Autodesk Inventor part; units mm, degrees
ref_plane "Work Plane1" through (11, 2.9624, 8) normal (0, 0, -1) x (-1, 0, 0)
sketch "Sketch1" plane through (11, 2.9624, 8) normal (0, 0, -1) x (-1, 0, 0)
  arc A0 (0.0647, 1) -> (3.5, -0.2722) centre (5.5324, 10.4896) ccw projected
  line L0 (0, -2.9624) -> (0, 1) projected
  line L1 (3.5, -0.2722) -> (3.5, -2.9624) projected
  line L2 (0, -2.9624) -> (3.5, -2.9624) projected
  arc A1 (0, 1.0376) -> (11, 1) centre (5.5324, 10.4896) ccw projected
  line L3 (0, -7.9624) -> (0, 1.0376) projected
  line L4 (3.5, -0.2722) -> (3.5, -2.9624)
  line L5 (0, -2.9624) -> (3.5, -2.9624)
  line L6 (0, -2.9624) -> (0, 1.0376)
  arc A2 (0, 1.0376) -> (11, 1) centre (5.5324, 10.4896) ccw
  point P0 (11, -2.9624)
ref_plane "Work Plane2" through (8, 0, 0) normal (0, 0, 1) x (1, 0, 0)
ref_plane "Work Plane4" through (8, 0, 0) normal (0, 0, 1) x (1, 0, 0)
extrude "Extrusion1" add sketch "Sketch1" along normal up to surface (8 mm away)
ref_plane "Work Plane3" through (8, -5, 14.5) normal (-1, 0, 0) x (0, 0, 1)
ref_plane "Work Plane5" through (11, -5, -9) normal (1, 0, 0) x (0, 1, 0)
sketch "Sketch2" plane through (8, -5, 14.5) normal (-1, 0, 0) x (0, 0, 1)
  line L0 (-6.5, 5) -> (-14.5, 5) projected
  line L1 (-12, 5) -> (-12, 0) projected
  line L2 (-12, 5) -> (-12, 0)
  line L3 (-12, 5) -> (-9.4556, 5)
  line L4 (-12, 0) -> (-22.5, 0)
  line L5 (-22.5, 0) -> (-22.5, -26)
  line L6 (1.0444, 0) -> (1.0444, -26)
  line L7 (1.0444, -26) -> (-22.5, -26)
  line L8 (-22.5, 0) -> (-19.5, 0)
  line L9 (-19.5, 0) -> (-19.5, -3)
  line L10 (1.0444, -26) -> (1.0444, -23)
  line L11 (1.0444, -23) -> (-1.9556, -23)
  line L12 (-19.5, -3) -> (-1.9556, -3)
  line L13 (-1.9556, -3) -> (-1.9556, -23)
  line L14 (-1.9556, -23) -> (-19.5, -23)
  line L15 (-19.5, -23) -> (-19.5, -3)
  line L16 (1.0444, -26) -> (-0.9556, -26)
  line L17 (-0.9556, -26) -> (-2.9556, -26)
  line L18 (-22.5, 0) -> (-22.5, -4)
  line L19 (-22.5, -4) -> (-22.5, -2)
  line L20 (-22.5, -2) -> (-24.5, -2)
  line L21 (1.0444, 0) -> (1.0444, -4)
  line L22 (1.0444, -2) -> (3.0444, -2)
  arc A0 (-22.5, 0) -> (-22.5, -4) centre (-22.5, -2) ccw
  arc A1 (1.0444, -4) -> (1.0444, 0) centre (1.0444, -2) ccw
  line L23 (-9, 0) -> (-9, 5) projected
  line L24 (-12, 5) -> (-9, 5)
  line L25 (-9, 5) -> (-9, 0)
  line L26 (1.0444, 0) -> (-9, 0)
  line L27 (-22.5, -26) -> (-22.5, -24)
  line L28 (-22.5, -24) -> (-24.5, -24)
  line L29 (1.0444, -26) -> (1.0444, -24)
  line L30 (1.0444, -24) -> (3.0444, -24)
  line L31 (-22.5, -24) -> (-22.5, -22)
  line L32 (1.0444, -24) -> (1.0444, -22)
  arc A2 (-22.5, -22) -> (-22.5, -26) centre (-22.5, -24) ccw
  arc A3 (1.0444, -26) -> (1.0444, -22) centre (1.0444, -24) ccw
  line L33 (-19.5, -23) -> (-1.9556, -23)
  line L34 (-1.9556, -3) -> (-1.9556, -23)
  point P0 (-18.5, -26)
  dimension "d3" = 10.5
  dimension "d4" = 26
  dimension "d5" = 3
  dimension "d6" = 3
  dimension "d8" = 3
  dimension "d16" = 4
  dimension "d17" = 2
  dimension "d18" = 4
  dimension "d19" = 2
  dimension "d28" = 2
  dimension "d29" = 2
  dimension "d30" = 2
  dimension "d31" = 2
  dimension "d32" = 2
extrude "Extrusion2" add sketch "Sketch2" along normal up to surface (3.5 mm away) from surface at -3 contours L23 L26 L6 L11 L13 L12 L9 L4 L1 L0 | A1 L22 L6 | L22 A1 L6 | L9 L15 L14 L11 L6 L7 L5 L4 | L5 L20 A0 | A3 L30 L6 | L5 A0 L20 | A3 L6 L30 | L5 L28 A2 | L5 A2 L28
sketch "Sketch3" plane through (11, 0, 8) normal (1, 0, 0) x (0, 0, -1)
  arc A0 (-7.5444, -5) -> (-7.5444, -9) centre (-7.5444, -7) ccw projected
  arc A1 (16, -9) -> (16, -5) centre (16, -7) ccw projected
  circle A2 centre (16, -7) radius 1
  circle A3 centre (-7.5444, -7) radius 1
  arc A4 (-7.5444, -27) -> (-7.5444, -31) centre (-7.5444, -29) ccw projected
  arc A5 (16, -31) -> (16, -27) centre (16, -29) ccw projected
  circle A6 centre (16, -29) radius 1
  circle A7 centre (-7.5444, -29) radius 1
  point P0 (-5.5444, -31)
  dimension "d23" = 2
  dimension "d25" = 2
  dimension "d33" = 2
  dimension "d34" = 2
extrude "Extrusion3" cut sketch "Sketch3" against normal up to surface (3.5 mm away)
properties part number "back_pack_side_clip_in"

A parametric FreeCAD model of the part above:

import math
import FreeCAD as App
import Part
import Sketcher
from FreeCAD import Vector


def add_polygon(sketch, points):
    """Adds a closed chain of lines whose ends are joined by coincident constraints."""
    first, n = sketch.GeometryCount, len(points)
    for a, b in zip(points, points[1:] + points[:1]):
        sketch.addGeometry(Part.LineSegment(App.Vector(*a, 0), App.Vector(*b, 0)), False)
    for i in range(n):
        sketch.addConstraint(Sketcher.Constraint("Coincident", first + i, 2, first + (i + 1) % n, 1))

doc = App.newDocument("Part")
body = doc.addObject("PartDesign::Body", "Body")

# Sketch on XY plane
sketch1 = body.newObject("Sketcher::SketchObject", "Sketch")
sketch1.AttachmentSupport = (doc.getObject("XY_Plane"), [""])
sketch1.MapMode = "FlatFace"
sketch1.AttachmentOffset = App.Placement(Vector(0, 0, 8), App.Rotation())
sketch1.addGeometry([
    Part.ArcOfCircle(Part.Circle(Vector(5.47, 13.45, 0), Vector(0, 0, 1), 10.95), math.radians(-79.31), math.radians(-60.05)),  # 0
    Part.ArcOfCircle(Part.Circle(Vector(5.47, 13.45, 0), Vector(0, 0, 1), 10.95), math.radians(-60.05), math.radians(-59.66)),  # 1
    Part.LineSegment(Vector(11, 4, 0), Vector(11, 0, 0)),  # 2
    Part.LineSegment(Vector(11, 0, 0), Vector(7.5, 0, 0)),  # 3
    Part.LineSegment(Vector(7.5, 0, 0), Vector(7.5, 2.69, 0)),  # 4
], False)
sketch1.addConstraint([
    Sketcher.Constraint("Tangent", 0, 2, 1, 1),
    Sketcher.Constraint("Coincident", 1, 2, 2, 1),
    Sketcher.Constraint("Coincident", 2, 2, 3, 1),
    Sketcher.Constraint("Coincident", 3, 2, 4, 1),
    Sketcher.Constraint("Coincident", 4, 2, 0, 1),
    Sketcher.Constraint("Vertical", 2),
    Sketcher.Constraint("Horizontal", 3),
    Sketcher.Constraint("Vertical", 4),
    Sketcher.Constraint("PointOnObject", 2, 2, -1),
    Sketcher.Constraint("DistanceY", 2, 2, 2, 1, 4.0),
    Sketcher.Constraint("Radius", 0, 10.95),
    Sketcher.Constraint("DistanceX", 3, 2, 3, 1, 3.5),
    Sketcher.Constraint("DistanceX", -1, 1, 1, 2, 11.0),
    Sketcher.Constraint("Radius", 1, 10.952),
    Sketcher.Constraint("DistanceY", 4, 2, 0, 3, 10.76),
    Sketcher.Constraint("DistanceX", -1, 1, 0, 2, 10.9353),
])
pad1 = body.newObject("PartDesign::Pad", "Pad")
pad1.Profile = sketch1
pad1.Length = 8
pad1.Reversed = True

# Sketch on YZ plane
sketch2 = body.newObject("Sketcher::SketchObject", "Sketch001")
sketch2.AttachmentSupport = (doc.getObject("YZ_Plane"), [""])
sketch2.MapMode = "FlatFace"
sketch2.AttachmentOffset = App.Placement(Vector(0, 0, 11), App.Rotation())
sketch2.addGeometry(Part.LineSegment(Vector(-5, 5.5, 0), Vector(0, 5.5, 0)), False)  # 0
sketch2.addGeometry(Part.LineSegment(Vector(0, 5.5, 0), Vector(0, 2.5, 0)), False)  # 1
sketch2.addGeometry(Part.LineSegment(Vector(0, 2.5, 0), Vector(-5, 2.5, 0)), False)  # 2
sketch2.addGeometry(Part.LineSegment(Vector(-5, 2.5, 0), Vector(-5, -8, 0)), False)  # 3
sketch2.addGeometry(Part.ArcOfCircle(Part.Circle(Vector(-7, -8, 0), Vector(0, 0, 1), 2), math.radians(180), math.radians(360)), False)  # 4
sketch2.addGeometry(Part.LineSegment(Vector(-9, -8, 0), Vector(-27, -8, 0)), False)  # 5
sketch2.addGeometry(Part.ArcOfCircle(Part.Circle(Vector(-29, -8, 0), Vector(0, 0, 1), 2), math.radians(180), math.radians(360)), False)  # 6
sketch2.addGeometry(Part.LineSegment(Vector(-31, -8, 0), Vector(-31, 15.5, 0)), False)  # 7
sketch2.addGeometry(Part.ArcOfCircle(Part.Circle(Vector(-29, 15.5, 0), Vector(0, 0, 1), 2), math.radians(0), math.radians(180)), False)  # 8
sketch2.addGeometry(Part.LineSegment(Vector(-27, 15.5, 0), Vector(-9, 15.5, 0)), False)  # 9
sketch2.addGeometry(Part.ArcOfCircle(Part.Circle(Vector(-7, 15.5, 0), Vector(0, 0, 1), 2), math.radians(0), math.radians(180)), False)  # 10
sketch2.addGeometry(Part.LineSegment(Vector(-5, 15.5, 0), Vector(-5, 5.5, 0)), False)  # 11
add_polygon(sketch2, [(-8, 12.5), (-28, 12.5), (-28, -5), (-8, -5)])  # lines 12-15
sketch2.addConstraint([
    Sketcher.Constraint("Coincident", 0, 2, 1, 1),
    Sketcher.Constraint("Coincident", 1, 2, 2, 1),
    Sketcher.Constraint("Coincident", 2, 2, 3, 1),
    Sketcher.Constraint("Tangent", 3, 2, 4, 2),
    Sketcher.Constraint("Coincident", 4, 1, 5, 1),
    Sketcher.Constraint("Coincident", 5, 2, 6, 2),
    Sketcher.Constraint("Tangent", 6, 1, 7, 1),
    Sketcher.Constraint("Tangent", 7, 2, 8, 2),
    Sketcher.Constraint("Coincident", 8, 1, 9, 1),
    Sketcher.Constraint("Coincident", 9, 2, 10, 2),
    Sketcher.Constraint("Tangent", 10, 1, 11, 1),
    Sketcher.Constraint("Coincident", 11, 2, 0, 1),
    Sketcher.Constraint("Horizontal", 0),
    Sketcher.Constraint("Vertical", 1),
    Sketcher.Constraint("Horizontal", 2),
    Sketcher.Constraint("Vertical", 3),
    Sketcher.Constraint("Horizontal", 5),
    Sketcher.Constraint("Vertical", 7),
    Sketcher.Constraint("Horizontal", 9),
    Sketcher.Constraint("Vertical", 11),
    Sketcher.Constraint("Horizontal", 12),
    Sketcher.Constraint("Vertical", 13),
    Sketcher.Constraint("Horizontal", 14),
    Sketcher.Constraint("Vertical", 15),
    Sketcher.Constraint("Equal", 4, 6),
    Sketcher.Constraint("Equal", 6, 8),
    Sketcher.Constraint("Equal", 8, 10),
    Sketcher.Constraint("PointOnObject", 0, 2, -2),
    Sketcher.Constraint("Horizontal", 4, 3, 6, 3),
    Sketcher.Constraint("Horizontal", 8, 3, 10, 3),
    Sketcher.Constraint("Horizontal", 3, 2, 4, 1),
    Sketcher.Constraint("Horizontal", 7, 2, 8, 1),
    Sketcher.Constraint("Vertical", 4, 3, 10, 3),
    Sketcher.Constraint("Radius", 4, 2.0),
    Sketcher.Constraint("DistanceY", 1, 2, 1, 1, 3.0),
    Sketcher.Constraint("DistanceY", 3, 2, 3, 1, 10.5),
    Sketcher.Constraint("DistanceY", 12, 2, 8, 3, 3.0),
    Sketcher.Constraint("DistanceX", 7, 2, 12, 2, 3.0),
    Sketcher.Constraint("DistanceY", 6, 3, 13, 2, 3.0),
    Sketcher.Constraint("DistanceX", 14, 2, 3, 2, 3.0),
    Sketcher.Constraint("DistanceX", 0, 1, 0, 2, 5.0),
    Sketcher.Constraint("DistanceX", 5, 2, 5, 1, 18.0),
    Sketcher.Constraint("DistanceY", 4, 3, -1, 1, 8.0),
    Sketcher.Constraint("DistanceY", 7, 1, 7, 2, 23.5444),
])
pad2 = body.newObject("PartDesign::Pad", "Pad001")
pad2.Profile = sketch2
pad2.Length = 3.5
pad2.Reversed = True

# Sketch on YZ plane
sketch3 = body.newObject("Sketcher::SketchObject", "Sketch002")
sketch3.AttachmentSupport = (doc.getObject("YZ_Plane"), [""])
sketch3.MapMode = "FlatFace"
sketch3.AttachmentOffset = App.Placement(Vector(0, 0, 11), App.Rotation())
sketch3.addGeometry([
    Part.Circle(Vector(-7, -8, 0), Vector(0, 0, 1), 1),
    Part.Circle(Vector(-7, 15.5, 0), Vector(0, 0, 1), 1),
    Part.Circle(Vector(-29, -8, 0), Vector(0, 0, 1), 1),
    Part.Circle(Vector(-29, 15.5, 0), Vector(0, 0, 1), 1),
], False)
sketch3.addConstraint([
    Sketcher.Constraint("Equal", 0, 1),
    Sketcher.Constraint("Equal", 1, 2),
    Sketcher.Constraint("Equal", 2, 3),
    Sketcher.Constraint("Horizontal", 0, 3, 2, 3),
    Sketcher.Constraint("Horizontal", 1, 3, 3, 3),
    Sketcher.Constraint("Vertical", 0, 3, 1, 3),
    Sketcher.Constraint("Vertical", 2, 3, 3, 3),
    Sketcher.Constraint("Diameter", 0, 2.0),
    Sketcher.Constraint("DistanceX", 0, 3, -1, 1, 7.0),
    Sketcher.Constraint("DistanceY", 0, 3, -1, 1, 8.0),
    Sketcher.Constraint("DistanceX", 2, 3, -1, 1, 29.0),
    Sketcher.Constraint("DistanceY", -1, 1, 1, 3, 15.5444),
])
pocket1 = body.newObject("PartDesign::Pocket", "Pocket")
pocket1.Profile = sketch3
pocket1.Length = 3.5

doc.recompute()
